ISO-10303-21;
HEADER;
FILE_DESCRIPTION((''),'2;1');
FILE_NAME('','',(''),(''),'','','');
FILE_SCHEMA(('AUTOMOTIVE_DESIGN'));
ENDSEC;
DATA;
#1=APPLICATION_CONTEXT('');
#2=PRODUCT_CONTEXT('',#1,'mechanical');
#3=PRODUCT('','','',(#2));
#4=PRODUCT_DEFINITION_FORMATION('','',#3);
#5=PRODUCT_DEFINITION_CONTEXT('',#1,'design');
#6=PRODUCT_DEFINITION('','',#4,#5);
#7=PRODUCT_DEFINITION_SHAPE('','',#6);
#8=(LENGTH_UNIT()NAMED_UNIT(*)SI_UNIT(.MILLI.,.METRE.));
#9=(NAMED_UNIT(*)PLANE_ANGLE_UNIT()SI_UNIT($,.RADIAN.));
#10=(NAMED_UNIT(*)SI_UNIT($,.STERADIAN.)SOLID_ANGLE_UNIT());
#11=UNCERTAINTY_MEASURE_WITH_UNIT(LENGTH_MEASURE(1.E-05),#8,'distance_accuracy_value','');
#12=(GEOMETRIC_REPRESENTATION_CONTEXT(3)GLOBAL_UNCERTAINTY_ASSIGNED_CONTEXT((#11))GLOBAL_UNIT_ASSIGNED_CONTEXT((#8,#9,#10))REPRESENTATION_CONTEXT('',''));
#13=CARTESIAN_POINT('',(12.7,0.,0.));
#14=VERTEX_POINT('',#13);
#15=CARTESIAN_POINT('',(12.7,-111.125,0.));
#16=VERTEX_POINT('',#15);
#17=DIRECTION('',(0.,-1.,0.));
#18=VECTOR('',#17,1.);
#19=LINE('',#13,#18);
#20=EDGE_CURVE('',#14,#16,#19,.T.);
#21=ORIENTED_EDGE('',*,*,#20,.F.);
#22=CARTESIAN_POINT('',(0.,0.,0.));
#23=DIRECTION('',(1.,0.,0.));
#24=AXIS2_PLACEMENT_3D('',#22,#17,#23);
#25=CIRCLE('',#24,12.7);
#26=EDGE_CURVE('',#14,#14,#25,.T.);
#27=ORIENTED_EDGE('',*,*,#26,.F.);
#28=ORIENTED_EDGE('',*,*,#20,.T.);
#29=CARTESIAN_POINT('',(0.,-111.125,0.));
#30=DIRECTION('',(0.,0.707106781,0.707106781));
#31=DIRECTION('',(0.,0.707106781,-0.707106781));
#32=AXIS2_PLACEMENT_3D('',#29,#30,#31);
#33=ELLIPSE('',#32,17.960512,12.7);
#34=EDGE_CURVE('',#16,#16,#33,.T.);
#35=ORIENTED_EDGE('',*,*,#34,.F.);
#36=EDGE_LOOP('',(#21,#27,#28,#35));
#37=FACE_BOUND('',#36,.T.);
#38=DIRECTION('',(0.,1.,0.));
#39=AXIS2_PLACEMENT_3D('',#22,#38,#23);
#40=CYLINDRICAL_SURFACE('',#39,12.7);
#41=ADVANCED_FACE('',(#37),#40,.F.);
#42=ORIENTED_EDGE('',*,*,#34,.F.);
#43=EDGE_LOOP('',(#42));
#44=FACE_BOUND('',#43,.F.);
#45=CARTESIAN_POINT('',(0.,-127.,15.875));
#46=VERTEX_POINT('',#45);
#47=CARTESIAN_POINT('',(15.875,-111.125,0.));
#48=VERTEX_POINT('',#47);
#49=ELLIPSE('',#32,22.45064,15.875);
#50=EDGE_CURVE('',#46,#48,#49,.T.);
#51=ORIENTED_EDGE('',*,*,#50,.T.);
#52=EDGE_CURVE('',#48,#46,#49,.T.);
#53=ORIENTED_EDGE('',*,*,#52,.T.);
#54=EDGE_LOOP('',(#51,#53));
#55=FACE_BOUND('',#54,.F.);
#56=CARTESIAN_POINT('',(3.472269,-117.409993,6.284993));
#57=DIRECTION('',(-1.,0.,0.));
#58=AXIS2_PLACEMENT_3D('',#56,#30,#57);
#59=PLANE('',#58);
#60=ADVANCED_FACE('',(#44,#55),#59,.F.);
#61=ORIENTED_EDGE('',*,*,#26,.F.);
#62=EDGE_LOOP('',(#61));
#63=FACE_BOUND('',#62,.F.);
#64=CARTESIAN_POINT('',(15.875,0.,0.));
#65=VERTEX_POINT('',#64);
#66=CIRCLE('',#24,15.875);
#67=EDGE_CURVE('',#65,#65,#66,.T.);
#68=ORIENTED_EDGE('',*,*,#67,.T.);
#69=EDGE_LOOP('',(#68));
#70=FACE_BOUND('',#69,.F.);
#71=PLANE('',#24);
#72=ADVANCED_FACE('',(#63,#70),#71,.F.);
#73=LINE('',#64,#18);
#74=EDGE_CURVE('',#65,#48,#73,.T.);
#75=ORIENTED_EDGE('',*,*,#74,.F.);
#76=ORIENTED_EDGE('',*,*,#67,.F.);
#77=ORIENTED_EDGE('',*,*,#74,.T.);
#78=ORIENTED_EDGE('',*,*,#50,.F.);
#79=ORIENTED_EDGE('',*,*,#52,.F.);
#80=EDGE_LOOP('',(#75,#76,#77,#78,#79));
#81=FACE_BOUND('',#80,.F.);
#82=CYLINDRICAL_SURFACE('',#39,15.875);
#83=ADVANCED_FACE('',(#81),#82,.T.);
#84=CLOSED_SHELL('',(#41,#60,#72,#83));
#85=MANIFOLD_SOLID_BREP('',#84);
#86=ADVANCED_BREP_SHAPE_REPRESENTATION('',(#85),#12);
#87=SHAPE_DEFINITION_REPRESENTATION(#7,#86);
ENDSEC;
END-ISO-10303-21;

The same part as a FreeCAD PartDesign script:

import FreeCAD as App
import Part
import Sketcher
Q = App.Units.Quantity


def add_polygon(sketch, points):
    """Adds a closed chain of lines whose ends are joined by coincident constraints."""
    first, n = sketch.GeometryCount, len(points)
    for a, b in zip(points, points[1:] + points[:1]):
        sketch.addGeometry(Part.LineSegment(App.Vector(*a, 0), App.Vector(*b, 0)), False)
    for i in range(n):
        sketch.addConstraint(Sketcher.Constraint("Coincident", first + i, 2, first + (i + 1) % n, 1))

doc = App.newDocument("Part")
params = doc.addObject("Spreadsheet::Sheet", "Params")
for row, (alias, value) in enumerate([
    ("sketch1_diameter", "1 in"),
    ("sketch1_diameter2", "1.25 in"),
    ("pad1_length", "5 in"),
    ("pocket1_length", "1 in"),
], start=1):
    params.set(f"A{row}", alias)
    params.set(f"B{row}", "=" + value)
    params.setAlias(f"B{row}", alias)

body = doc.addObject("PartDesign::Body", "Body")

sketch1 = body.newObject("Sketcher::SketchObject", "Sketch")
sketch1.AttachmentSupport = (doc.getObject("XZ_Plane"), [""])
sketch1.MapMode = "FlatFace"
sketch1.addGeometry([
    Part.Circle(App.Vector(0, 0, 0), App.Vector(0, 0, 1), 15.875),
    Part.Circle(App.Vector(0, 0, 0), App.Vector(0, 0, 1), 12.7),
], False)
sketch1.addConstraint([
    Sketcher.Constraint("Coincident", 0, 3, -1, 1),
    Sketcher.Constraint("Coincident", 1, 3, -1, 1),
    Sketcher.Constraint("Diameter", 1, Q("1 in")),
    Sketcher.Constraint("Diameter", 0, Q("1.25 in")),
])
sketch1.setExpression("Constraints[2]", "Params.sketch1_diameter")
sketch1.setExpression("Constraints[3]", "Params.sketch1_diameter2")
pad1 = body.newObject("PartDesign::Pad", "Pad")
pad1.Profile = sketch1
pad1.setExpression("Length", "Params.pad1_length")

sketch2 = body.newObject("Sketcher::SketchObject", "Sketch001")
sketch2.Placement = App.Placement(App.Vector(0, -55.5625, -55.5625), App.Rotation(App.Vector(-1, 0, 0), App.Vector(0, -0.707106781, 0.707106781), App.Vector(0, 0.707106781, 0.707106781), "ZXY"))
add_polygon(sketch2, [(-83.773673, 143.247455), (-83.773673, 31.683672), (76.829135, 31.683672), (76.829135, 143.247455)])
sketch2.addConstraint([
    Sketcher.Constraint("Vertical", 0),
    Sketcher.Constraint("Horizontal", 1),
    Sketcher.Constraint("Vertical", 2),
    Sketcher.Constraint("Horizontal", 3),
    Sketcher.Constraint("DistanceX", 1, 1, 1, 2, 160.602808),
    Sketcher.Constraint("DistanceY", 0, 2, 0, 1, 111.563783),
    Sketcher.Constraint("DistanceX", 0, 2, -1, 1, 83.773673),
    Sketcher.Constraint("DistanceY", -1, 1, 0, 2, 31.683672),
])
pocket1 = body.newObject("PartDesign::Pocket", "Pocket")
pocket1.Profile = sketch2
pocket1.setExpression("Length", "Params.pocket1_length")

doc.recompute()
